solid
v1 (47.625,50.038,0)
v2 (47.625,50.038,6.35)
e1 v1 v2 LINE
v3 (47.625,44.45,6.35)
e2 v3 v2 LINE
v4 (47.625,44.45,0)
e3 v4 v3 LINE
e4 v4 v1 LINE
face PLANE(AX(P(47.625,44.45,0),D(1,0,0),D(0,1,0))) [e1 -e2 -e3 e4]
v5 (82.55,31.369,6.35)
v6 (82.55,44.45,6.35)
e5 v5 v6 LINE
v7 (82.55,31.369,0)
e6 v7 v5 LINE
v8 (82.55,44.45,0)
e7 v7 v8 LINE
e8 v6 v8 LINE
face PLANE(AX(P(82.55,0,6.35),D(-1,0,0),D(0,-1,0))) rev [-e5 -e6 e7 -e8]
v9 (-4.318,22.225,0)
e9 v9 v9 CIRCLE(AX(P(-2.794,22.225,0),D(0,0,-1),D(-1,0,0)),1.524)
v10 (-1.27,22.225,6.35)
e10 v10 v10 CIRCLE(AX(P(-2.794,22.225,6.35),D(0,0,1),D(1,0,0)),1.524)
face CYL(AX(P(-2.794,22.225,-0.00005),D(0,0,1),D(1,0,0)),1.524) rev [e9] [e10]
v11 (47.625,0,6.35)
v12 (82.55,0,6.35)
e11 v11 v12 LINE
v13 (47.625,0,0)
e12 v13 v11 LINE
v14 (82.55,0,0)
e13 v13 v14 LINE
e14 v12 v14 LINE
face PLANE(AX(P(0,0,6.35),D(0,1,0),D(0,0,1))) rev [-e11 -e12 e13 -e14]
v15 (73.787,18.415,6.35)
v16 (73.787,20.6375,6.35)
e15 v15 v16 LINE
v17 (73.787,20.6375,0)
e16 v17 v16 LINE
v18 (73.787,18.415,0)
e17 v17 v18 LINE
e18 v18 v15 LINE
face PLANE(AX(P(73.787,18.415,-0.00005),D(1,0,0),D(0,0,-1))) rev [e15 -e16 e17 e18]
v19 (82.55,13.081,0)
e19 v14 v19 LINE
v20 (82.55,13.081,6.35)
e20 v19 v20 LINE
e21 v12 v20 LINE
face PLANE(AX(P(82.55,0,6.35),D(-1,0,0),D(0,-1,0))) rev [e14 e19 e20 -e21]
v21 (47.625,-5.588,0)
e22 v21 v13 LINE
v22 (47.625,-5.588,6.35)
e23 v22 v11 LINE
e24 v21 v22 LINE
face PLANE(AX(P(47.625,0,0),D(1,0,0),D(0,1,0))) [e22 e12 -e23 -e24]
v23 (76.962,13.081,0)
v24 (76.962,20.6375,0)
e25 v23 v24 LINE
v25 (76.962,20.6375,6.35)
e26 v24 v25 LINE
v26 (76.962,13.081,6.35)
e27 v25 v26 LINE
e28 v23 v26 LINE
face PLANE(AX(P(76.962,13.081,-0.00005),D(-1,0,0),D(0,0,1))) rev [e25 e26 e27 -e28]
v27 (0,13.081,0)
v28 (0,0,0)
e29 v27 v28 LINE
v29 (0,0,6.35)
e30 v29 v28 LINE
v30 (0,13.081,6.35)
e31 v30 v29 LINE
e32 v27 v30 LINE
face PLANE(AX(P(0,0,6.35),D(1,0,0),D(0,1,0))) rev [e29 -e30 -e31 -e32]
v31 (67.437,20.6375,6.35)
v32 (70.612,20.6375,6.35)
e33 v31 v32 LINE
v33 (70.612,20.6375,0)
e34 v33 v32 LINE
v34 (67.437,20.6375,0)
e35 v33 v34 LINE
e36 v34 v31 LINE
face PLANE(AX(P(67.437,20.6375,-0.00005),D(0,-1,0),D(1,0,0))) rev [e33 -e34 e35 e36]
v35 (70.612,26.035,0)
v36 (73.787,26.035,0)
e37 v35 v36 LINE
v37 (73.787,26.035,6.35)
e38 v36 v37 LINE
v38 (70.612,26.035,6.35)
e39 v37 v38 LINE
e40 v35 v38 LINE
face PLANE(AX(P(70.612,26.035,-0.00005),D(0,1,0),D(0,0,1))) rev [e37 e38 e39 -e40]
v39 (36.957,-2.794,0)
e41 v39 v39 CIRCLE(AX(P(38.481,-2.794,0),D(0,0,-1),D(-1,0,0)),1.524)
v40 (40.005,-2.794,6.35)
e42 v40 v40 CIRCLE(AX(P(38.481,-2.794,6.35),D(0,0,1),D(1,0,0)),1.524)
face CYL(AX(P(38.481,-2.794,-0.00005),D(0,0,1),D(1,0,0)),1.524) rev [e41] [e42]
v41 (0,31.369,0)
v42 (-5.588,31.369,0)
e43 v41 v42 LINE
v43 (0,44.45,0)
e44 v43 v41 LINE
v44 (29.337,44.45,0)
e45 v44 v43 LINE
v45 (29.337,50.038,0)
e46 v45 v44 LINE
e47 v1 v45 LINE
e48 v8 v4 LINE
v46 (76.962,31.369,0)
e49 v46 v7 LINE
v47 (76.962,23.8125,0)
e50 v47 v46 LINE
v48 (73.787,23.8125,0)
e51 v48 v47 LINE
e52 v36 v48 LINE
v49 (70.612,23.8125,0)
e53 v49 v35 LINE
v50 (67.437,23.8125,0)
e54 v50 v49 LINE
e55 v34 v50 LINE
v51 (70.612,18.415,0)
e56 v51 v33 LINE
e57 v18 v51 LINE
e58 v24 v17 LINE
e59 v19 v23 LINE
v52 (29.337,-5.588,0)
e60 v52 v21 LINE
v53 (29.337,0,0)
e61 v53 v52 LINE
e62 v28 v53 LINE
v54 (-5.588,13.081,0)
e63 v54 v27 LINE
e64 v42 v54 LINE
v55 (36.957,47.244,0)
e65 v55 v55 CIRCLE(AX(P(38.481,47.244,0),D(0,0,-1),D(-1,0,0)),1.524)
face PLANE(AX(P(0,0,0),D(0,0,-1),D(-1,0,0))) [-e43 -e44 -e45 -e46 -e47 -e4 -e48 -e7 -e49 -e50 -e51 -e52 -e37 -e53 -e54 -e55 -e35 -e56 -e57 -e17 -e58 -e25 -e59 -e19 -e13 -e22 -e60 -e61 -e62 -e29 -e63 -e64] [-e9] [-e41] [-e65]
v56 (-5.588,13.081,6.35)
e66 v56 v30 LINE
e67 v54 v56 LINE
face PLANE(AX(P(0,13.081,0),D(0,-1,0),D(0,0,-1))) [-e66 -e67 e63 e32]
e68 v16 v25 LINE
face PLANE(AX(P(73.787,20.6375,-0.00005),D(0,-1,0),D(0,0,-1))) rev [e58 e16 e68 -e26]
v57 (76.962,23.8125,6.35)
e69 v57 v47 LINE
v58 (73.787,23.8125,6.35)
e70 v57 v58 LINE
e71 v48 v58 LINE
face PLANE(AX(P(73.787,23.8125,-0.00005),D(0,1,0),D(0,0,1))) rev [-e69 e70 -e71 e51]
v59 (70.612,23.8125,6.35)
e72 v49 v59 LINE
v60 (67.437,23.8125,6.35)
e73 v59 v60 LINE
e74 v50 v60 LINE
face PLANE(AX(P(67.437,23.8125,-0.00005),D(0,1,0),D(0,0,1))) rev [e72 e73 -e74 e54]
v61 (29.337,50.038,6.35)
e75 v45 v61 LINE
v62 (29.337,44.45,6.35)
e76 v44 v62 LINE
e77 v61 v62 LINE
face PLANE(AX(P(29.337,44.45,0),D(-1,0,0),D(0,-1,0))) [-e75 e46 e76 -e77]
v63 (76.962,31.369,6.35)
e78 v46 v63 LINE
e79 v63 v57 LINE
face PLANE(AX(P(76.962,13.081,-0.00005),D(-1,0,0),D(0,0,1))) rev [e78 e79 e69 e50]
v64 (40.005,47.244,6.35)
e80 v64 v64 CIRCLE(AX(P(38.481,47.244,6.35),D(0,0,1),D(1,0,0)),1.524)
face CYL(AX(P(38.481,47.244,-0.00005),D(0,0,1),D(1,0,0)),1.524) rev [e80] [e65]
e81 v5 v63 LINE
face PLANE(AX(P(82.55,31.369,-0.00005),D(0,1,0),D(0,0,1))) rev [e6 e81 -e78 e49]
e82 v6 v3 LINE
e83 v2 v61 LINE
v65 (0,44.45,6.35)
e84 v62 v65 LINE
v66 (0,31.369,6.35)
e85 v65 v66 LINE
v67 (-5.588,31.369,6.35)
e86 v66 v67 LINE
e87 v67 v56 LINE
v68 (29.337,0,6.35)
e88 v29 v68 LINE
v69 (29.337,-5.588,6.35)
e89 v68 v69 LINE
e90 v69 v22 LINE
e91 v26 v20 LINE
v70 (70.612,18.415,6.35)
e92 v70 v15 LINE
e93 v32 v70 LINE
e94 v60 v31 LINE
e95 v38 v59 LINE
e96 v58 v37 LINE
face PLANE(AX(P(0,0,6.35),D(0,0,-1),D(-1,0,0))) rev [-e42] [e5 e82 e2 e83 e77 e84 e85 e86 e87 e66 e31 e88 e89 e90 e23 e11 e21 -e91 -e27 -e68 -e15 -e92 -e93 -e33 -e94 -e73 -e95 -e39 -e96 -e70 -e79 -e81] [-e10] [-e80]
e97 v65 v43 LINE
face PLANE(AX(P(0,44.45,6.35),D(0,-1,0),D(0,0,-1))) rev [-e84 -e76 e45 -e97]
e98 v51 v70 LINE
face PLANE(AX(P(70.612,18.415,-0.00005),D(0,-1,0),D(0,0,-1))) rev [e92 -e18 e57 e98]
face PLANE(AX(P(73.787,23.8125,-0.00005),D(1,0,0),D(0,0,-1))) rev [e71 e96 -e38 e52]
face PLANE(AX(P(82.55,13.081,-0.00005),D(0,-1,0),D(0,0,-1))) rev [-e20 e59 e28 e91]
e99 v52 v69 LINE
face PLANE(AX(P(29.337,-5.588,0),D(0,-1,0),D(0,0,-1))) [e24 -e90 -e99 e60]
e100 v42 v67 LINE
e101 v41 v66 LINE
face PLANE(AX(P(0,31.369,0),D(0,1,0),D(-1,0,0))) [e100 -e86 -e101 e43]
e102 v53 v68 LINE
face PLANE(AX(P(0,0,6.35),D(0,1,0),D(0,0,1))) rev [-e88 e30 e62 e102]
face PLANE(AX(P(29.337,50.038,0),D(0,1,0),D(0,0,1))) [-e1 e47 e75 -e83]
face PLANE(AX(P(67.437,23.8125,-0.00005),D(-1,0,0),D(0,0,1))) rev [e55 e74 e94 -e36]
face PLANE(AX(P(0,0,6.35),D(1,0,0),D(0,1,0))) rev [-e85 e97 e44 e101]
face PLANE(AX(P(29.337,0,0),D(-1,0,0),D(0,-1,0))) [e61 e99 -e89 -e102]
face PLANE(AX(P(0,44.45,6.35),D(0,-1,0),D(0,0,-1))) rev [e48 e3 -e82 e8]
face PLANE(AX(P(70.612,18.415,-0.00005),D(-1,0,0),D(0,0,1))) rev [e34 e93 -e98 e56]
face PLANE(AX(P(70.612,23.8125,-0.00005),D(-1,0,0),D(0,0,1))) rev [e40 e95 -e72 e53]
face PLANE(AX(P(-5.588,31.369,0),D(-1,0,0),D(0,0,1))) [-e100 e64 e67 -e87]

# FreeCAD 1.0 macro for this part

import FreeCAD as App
import Part
import Sketcher
from FreeCAD import Vector
Q = App.Units.Quantity


def add_polygon(sketch, points):
    """Adds a closed chain of lines whose ends are joined by coincident constraints."""
    first, n = sketch.GeometryCount, len(points)
    for a, b in zip(points, points[1:] + points[:1]):
        sketch.addGeometry(Part.LineSegment(App.Vector(*a, 0), App.Vector(*b, 0)), False)
    for i in range(n):
        sketch.addConstraint(Sketcher.Constraint("Coincident", first + i, 2, first + (i + 1) % n, 1))

doc = App.newDocument("Part")
body = doc.addObject("PartDesign::Body", "Body")

sketch1 = body.newObject("Sketcher::SketchObject", "Sketch")
sketch1.AttachmentSupport = (doc.getObject("XY_Plane"), [""])
sketch1.MapMode = "FlatFace"
add_polygon(sketch1, [(0, 44), (0, 0), (83, 0), (83, 44)])
sketch1.addConstraint([
    Sketcher.Constraint("Vertical", 0),
    Sketcher.Constraint("Horizontal", 1),
    Sketcher.Constraint("Vertical", 2),
    Sketcher.Constraint("Horizontal", 3),
    Sketcher.Constraint("Coincident", 0, 2, -1, 1),
    Sketcher.Constraint("DistanceX", 1, 1, 1, 2, Q("3.25 in")),
    Sketcher.Constraint("DistanceY", 0, 2, 0, 1, Q("1.75 in")),
])
pad1 = body.newObject("PartDesign::Pad", "Pad")
pad1.Profile = sketch1
pad1.Length = Q("0.25 in")

sketch2 = body.newObject("Sketcher::SketchObject", "Sketch001")
sketch2.AttachmentSupport = (doc.getObject("XY_Plane"), [""])
sketch2.MapMode = "FlatFace"
sketch2.AttachmentOffset = App.Placement(Vector(0, 0, 0.25 * 25.4), App.Rotation())
add_polygon(sketch2, [(-6, 31), (-6, 13), (0, 13), (0, 31)])
sketch2.addConstraint([
    Sketcher.Constraint("Vertical", 0),
    Sketcher.Constraint("Horizontal", 1),
    Sketcher.Constraint("Vertical", 2),
    Sketcher.Constraint("Horizontal", 3),
    Sketcher.Constraint("PointOnObject", 1, 2, -2),
    Sketcher.Constraint("DistanceX", 1, 1, 1, 2, Q("0.22 in")),
    Sketcher.Constraint("DistanceY", 0, 2, 0, 1, Q("0.72 in")),
    Sketcher.Constraint("DistanceY", -1, 1, 0, 2, Q("0.515 in")),
])
pad2 = body.newObject("PartDesign::Pad", "Pad001")
pad2.Profile = sketch2
pad2.Length = Q("0.25 in")
pad2.Reversed = True

sketch3 = body.newObject("Sketcher::SketchObject", "Sketch002")
sketch3.AttachmentSupport = (doc.getObject("XY_Plane"), [""])
sketch3.MapMode = "FlatFace"
sketch3.AttachmentOffset = App.Placement(Vector(0, 0, 0.25 * 25.4), App.Rotation())
add_polygon(sketch3, [(29, 50), (29, 44), (48, 44), (48, 50)])
add_polygon(sketch3, [(29, 0), (29, -6), (48, -6), (48, 0)])
sketch3.addConstraint([
    Sketcher.Constraint("Vertical", 0),
    Sketcher.Constraint("Horizontal", 1),
    Sketcher.Constraint("Vertical", 2),
    Sketcher.Constraint("Horizontal", 3),
    Sketcher.Constraint("Vertical", 4),
    Sketcher.Constraint("Horizontal", 5),
    Sketcher.Constraint("Vertical", 6),
    Sketcher.Constraint("Horizontal", 7),
    Sketcher.Constraint("PointOnObject", 6, 2, -1),
    Sketcher.Constraint("Vertical", 3, 2, 4, 2),
    Sketcher.Constraint("Vertical", 2, 2, 5, 2),
    Sketcher.Constraint("Equal", 2, 4),
    Sketcher.Constraint("DistanceX", 1, 1, 1, 2, Q("0.72 in")),
    Sketcher.Constraint("DistanceY", 0, 2, 0, 1, Q("0.22 in")),
    Sketcher.Constraint("DistanceY", -1, 1, 0, 2, Q("1.75 in")),
    Sketcher.Constraint("DistanceX", -1, 1, 0, 2, Q("1.155 in")),
])
pad3 = body.newObject("PartDesign::Pad", "Pad002")
pad3.Profile = sketch3
pad3.Length = Q("0.25 in")
pad3.Reversed = True

sketch4 = body.newObject("Sketcher::SketchObject", "Sketch003")
sketch4.AttachmentSupport = (doc.getObject("XY_Plane"), [""])
sketch4.MapMode = "FlatFace"
sketch4.AttachmentOffset = App.Placement(Vector(0, 0, 0.25 * 25.4), App.Rotation())
add_polygon(sketch4, [(77, 31), (77, 13), (83, 13), (83, 31)])
sketch4.addConstraint([
    Sketcher.Constraint("Vertical", 0),
    Sketcher.Constraint("Horizontal", 1),
    Sketcher.Constraint("Vertical", 2),
    Sketcher.Constraint("Horizontal", 3),
    Sketcher.Constraint("DistanceX", 1, 1, 1, 2, Q("0.22 in")),
    Sketcher.Constraint("DistanceY", 0, 2, 0, 1, Q("0.72 in")),
    Sketcher.Constraint("DistanceX", -1, 1, 0, 2, Q("3.03 in")),
    Sketcher.Constraint("DistanceY", -1, 1, 0, 2, Q("0.515 in")),
])
pocket1 = body.newObject("PartDesign::Pocket", "Pocket")
pocket1.Profile = sketch4
pocket1.Type = "ThroughAll"

sketch5 = body.newObject("Sketcher::SketchObject", "Sketch004")
sketch5.AttachmentSupport = (doc.getObject("XY_Plane"), [""])
sketch5.MapMode = "FlatFace"
sketch5.AttachmentOffset = App.Placement(Vector(0, 0, 0.25 * 25.4), App.Rotation())
sketch5.addGeometry(Part.Circle(Vector(-2.8, 22.2, 0), Vector(0, 0, 1), 1.5), False)
sketch5.addGeometry(Part.Circle(Vector(38.5, -2.8, 0), Vector(0, 0, 1), 1.5), False)
sketch5.addGeometry(Part.Circle(Vector(38.5, 47.2, 0), Vector(0, 0, 1), 1.5), False)
add_polygon(sketch5, [(70.6, 23.8), (67.4, 23.8), (67.4, 20.6), (70.6, 20.6), (70.6, 18.4), (73.8, 18.4), (73.8, 20.6), (77, 20.6), (77, 23.8), (73.8, 23.8), (73.8, 26), (70.6, 26)])
sketch5.addConstraint([
    Sketcher.Constraint("Horizontal", 3),
    Sketcher.Constraint("Vertical", 4),
    Sketcher.Constraint("Horizontal", 5),
    Sketcher.Constraint("Vertical", 6),
    Sketcher.Constraint("Horizontal", 7),
    Sketcher.Constraint("Vertical", 8),
    Sketcher.Constraint("Horizontal", 9),
    Sketcher.Constraint("Vertical", 10),
    Sketcher.Constraint("Horizontal", 11),
    Sketcher.Constraint("Vertical", 12),
    Sketcher.Constraint("Horizontal", 13),
    Sketcher.Constraint("Vertical", 14),
    Sketcher.Constraint("Equal", 0, 1),
    Sketcher.Constraint("Equal", 1, 2),
    Sketcher.Constraint("Horizontal", 5, 2, 8, 2),
    Sketcher.Constraint("Horizontal", 3, 2, 10, 2),
    Sketcher.Constraint("Vertical", 1, 3, 2, 3),
    Sketcher.Constraint("Vertical", 8, 2, 11, 2),
    Sketcher.Constraint("Vertical", 6, 2, 13, 2),
    Sketcher.Constraint("Equal", 5, 7),
    Sketcher.Constraint("Equal", 7, 9),
    Sketcher.Constraint("Equal", 13, 4),
    Sketcher.Constraint("Equal", 8, 12),
    Sketcher.Constraint("Diameter", 0, Q("0.12 in")),
    Sketcher.Constraint("DistanceX", 3, 2, 3, 1, Q("0.125 in")),
    Sketcher.Constraint("DistanceX", 0, 3, -1, 1, Q("0.11 in")),
    Sketcher.Constraint("DistanceY", 1, 3, -1, 1, Q("0.11 in")),
    Sketcher.Constraint("DistanceY", -1, 1, 2, 3, Q("1.86 in")),
    Sketcher.Constraint("DistanceX", -1, 1, 5, 2, Q("2.78 in")),
    Sketcher.Constraint("DistanceX", 2, 3, 3, 2, Q("1.14 in")),
    Sketcher.Constraint("DistanceY", 6, 2, 6, 1, Q("0.0875 in")),
    Sketcher.Constraint("DistanceY", -1, 1, 0, 3, Q("0.875 in")),
    Sketcher.Constraint("DistanceY", -1, 1, 3, 2, Q("0.9375 in")),
])
pocket2 = body.newObject("PartDesign::Pocket", "Pocket001")
pocket2.Profile = sketch5
pocket2.Type = "ThroughAll"

doc.recompute()
